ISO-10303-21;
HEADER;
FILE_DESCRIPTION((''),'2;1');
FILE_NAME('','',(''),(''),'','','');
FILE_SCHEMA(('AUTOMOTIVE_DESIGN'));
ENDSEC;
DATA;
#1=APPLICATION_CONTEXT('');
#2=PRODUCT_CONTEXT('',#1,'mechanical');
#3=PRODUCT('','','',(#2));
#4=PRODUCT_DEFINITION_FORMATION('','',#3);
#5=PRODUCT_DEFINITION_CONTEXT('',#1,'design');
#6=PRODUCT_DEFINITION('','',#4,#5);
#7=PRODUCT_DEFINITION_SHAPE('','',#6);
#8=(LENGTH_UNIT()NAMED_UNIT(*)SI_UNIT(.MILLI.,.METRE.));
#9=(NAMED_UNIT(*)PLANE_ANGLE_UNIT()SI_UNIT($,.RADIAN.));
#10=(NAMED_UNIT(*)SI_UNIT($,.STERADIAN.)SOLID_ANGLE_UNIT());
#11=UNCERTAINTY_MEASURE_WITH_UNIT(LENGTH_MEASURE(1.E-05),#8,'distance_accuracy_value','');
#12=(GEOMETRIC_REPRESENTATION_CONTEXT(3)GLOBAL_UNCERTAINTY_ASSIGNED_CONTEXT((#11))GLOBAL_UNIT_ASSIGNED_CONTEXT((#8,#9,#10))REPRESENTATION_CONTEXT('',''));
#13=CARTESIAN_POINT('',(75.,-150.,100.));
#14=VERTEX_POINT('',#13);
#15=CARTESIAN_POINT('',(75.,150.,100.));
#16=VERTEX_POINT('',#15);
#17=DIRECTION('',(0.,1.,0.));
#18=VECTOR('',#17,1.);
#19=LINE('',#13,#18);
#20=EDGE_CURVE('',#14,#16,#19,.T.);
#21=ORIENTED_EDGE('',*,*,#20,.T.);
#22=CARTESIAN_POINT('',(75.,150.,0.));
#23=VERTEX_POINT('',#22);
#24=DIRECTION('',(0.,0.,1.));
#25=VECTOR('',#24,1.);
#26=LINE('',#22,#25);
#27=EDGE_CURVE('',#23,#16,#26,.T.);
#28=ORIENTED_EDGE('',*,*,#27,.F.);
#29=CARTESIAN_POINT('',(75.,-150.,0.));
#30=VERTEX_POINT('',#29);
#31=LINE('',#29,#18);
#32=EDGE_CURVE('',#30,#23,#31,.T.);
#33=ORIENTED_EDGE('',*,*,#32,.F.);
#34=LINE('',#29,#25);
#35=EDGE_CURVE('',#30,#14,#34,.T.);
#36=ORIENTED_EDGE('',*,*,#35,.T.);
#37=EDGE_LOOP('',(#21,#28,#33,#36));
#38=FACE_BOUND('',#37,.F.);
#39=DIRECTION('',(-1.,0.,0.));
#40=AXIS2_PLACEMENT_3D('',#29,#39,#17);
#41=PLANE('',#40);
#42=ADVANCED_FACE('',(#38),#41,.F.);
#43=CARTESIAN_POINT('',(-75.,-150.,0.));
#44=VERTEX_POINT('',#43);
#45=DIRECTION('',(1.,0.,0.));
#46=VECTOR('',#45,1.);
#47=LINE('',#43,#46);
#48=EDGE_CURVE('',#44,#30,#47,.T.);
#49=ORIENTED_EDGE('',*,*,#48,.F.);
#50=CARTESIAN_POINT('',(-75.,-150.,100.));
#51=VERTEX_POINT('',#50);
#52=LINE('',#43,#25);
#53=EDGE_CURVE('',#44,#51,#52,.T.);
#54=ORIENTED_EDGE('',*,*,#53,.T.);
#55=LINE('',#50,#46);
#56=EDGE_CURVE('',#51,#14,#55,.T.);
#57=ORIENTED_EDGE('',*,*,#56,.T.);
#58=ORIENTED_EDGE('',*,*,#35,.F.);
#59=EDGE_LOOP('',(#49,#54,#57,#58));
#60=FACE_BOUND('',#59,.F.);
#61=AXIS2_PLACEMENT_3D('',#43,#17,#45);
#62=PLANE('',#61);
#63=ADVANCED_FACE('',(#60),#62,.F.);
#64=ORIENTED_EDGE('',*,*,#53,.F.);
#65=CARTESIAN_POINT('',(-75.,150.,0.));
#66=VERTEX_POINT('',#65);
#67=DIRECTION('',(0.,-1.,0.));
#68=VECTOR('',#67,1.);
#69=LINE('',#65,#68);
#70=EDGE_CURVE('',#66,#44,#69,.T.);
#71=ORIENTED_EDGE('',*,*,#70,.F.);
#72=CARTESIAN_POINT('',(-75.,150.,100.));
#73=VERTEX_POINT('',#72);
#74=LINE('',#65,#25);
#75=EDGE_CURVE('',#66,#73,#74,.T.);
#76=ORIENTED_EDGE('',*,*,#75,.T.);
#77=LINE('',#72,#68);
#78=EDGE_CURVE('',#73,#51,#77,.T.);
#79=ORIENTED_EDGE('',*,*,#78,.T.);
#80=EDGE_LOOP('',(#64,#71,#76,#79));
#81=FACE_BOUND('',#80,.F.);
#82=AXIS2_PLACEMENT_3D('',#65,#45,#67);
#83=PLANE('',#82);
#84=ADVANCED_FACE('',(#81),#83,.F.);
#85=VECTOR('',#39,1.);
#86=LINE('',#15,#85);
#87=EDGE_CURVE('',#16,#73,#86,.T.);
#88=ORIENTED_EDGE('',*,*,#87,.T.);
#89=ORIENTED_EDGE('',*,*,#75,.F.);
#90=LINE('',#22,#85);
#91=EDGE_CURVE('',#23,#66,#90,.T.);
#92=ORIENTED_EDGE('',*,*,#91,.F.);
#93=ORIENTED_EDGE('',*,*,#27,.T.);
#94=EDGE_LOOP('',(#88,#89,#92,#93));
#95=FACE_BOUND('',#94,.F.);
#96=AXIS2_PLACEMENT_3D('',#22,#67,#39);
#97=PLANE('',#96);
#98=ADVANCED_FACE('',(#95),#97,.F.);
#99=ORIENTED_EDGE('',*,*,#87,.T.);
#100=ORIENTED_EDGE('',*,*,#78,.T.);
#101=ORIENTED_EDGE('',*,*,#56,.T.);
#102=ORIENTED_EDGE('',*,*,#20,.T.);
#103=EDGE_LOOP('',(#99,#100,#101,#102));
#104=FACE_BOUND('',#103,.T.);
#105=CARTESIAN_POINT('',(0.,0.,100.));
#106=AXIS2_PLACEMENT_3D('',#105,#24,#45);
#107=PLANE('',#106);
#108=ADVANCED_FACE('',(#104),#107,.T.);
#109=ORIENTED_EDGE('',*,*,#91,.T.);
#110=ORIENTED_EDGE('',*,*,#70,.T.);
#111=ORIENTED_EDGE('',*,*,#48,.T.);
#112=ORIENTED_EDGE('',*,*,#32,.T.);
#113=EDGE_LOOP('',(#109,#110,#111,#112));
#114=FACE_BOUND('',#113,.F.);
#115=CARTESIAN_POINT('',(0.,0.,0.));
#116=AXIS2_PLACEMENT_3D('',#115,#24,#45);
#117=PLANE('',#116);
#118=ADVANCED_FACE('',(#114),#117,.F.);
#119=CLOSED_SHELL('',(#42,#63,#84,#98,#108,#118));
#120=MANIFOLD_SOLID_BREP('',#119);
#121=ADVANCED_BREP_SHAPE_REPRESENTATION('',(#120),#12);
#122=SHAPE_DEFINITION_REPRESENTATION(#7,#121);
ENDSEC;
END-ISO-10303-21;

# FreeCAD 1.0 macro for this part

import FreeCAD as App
import Part
import Sketcher
from FreeCAD import Vector
Q = App.Units.Quantity

doc = App.newDocument("Part")
params = doc.addObject("Spreadsheet::Sheet", "Params")
for row, (alias, value) in enumerate([
    ("sketch1_width", "150 mm"),
    ("sketch1_height", "300 mm"),
    ("pad1_length", "100 mm"),
], start=1):
    params.set(f"A{row}", alias)
    params.set(f"B{row}", "=" + value)
    params.setAlias(f"B{row}", alias)

body = doc.addObject("PartDesign::Body", "Body")

sketch1 = doc.addObject("Sketcher::SketchObject", "Sketch")
body.addObject(sketch1)
sketch1.AttachmentSupport = (doc.XY_Plane, [""])
sketch1.MapMode = "FlatFace"
sketch1.addGeometry([
    Part.LineSegment(Vector(75, 150, 0), Vector(-75, 150, 0)),
    Part.LineSegment(Vector(-75, 150, 0), Vector(-75, -150, 0)),
    Part.LineSegment(Vector(-75, -150, 0), Vector(75, -150, 0)),
    Part.LineSegment(Vector(75, -150, 0), Vector(75, 150, 0)),
], False)
sketch1.addConstraint([
    Sketcher.Constraint("Coincident", 0, 2, 1, 1),
    Sketcher.Constraint("Coincident", 1, 2, 2, 1),
    Sketcher.Constraint("Coincident", 2, 2, 3, 1),
    Sketcher.Constraint("Coincident", 3, 2, 0, 1),
    Sketcher.Constraint("Horizontal", 0),
    Sketcher.Constraint("Vertical", 1),
    Sketcher.Constraint("Horizontal", 2),
    Sketcher.Constraint("Vertical", 3),
    Sketcher.Constraint("Symmetric", 0, 2, 2, 2, -1, 1),
    Sketcher.Constraint("DistanceX", 0, 2, 0, 1, Q("150 mm")),
    Sketcher.Constraint("DistanceY", 1, 2, 1, 1, Q("300 mm")),
])
sketch1.setExpression("Constraints[9]", "Params.sketch1_width")
sketch1.setExpression("Constraints[10]", "Params.sketch1_height")
pad1 = doc.addObject("PartDesign::Pad", "Pad")
body.addObject(pad1)
pad1.Profile = sketch1
pad1.setExpression("Length", "Params.pad1_length")

doc.recompute()
